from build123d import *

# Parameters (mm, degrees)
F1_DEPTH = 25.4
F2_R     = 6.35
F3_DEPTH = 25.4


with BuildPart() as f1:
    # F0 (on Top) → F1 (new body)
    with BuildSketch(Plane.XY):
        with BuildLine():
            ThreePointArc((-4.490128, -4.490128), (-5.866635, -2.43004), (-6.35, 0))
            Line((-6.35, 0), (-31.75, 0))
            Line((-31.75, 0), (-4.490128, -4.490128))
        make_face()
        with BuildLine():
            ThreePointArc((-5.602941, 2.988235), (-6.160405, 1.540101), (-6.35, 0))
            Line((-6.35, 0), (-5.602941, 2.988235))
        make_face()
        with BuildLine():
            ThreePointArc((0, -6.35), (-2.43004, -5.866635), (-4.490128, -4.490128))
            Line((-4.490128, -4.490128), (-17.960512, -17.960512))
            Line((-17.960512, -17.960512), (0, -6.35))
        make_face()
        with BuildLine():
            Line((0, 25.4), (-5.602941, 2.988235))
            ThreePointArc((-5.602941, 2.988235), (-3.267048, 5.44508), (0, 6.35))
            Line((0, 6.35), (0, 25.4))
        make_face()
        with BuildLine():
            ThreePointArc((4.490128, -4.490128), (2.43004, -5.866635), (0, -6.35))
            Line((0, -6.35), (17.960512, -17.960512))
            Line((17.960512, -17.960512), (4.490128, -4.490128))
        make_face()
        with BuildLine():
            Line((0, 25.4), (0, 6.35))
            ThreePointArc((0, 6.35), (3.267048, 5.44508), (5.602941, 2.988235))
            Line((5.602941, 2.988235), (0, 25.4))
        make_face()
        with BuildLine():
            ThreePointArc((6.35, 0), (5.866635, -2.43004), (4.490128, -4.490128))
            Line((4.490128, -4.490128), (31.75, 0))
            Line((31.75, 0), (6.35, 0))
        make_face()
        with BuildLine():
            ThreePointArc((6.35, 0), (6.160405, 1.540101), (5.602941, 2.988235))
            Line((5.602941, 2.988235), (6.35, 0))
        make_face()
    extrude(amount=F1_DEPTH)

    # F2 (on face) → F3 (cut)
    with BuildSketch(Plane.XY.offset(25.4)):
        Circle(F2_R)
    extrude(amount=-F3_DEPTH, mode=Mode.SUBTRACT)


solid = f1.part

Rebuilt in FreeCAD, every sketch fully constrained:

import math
import FreeCAD as App
import Part
import Sketcher

V = App.Vector
Q = App.Units.Quantity

doc = App.newDocument("Part")
body = doc.addObject("PartDesign::Body", "Body")
body.AllowCompound = True

# Sketch on XY plane
sketch1 = body.newObject("Sketcher::SketchObject", "Sketch")
sketch1.AttachmentSupport = (doc.getObject("XY_Plane"), [""])
sketch1.MapMode = "FlatFace"
sketch1.addGeometry([
    Part.ArcOfCircle(Part.Circle(V(0, 0, 0), V(0, 0, 1), 6.3), math.radians(180), math.radians(225)),  # 0
    Part.LineSegment(V(-6.3, 0, 0), V(-31.8, 0, 0)),  # 1
    Part.LineSegment(V(-31.8, 0, 0), V(-4.5, -4.5, 0)),  # 2
    Part.ArcOfCircle(Part.Circle(V(0, 0, 0), V(0, 0, 1), 6.3), math.radians(152), math.radians(180)),  # 3
    Part.LineSegment(V(-6.3, 0, 0), V(-5.6, 3, 0)),  # 4
    Part.ArcOfCircle(Part.Circle(V(0, 0, 0), V(0, 0, 1), 6.3), math.radians(-135), math.radians(-90)),  # 5
    Part.LineSegment(V(-4.5, -4.5, 0), V(-18, -18, 0)),  # 6
    Part.LineSegment(V(-18, -18, 0), V(0, -6.3, 0)),  # 7
    Part.LineSegment(V(0, 25.4, 0), V(-5.6, 3, 0)),  # 8
    Part.ArcOfCircle(Part.Circle(V(0, 0, 0), V(0, 0, 1), 6.3), math.radians(90), math.radians(152)),  # 9
    Part.ArcOfCircle(Part.Circle(V(0, 0, 0), V(0, 0, 1), 6.3), math.radians(28), math.radians(90)),  # 10
    Part.LineSegment(V(5.6, 3, 0), V(0, 25.4, 0)),  # 11
    Part.ArcOfCircle(Part.Circle(V(0, 0, 0), V(0, 0, 1), 6.3), math.radians(-90), math.radians(-45)),  # 12
    Part.LineSegment(V(0, -6.3, 0), V(18, -18, 0)),  # 13
    Part.LineSegment(V(18, -18, 0), V(4.5, -4.5, 0)),  # 14
    Part.ArcOfCircle(Part.Circle(V(0, 0, 0), V(0, 0, 1), 6.3), math.radians(-45), math.radians(0)),  # 15
    Part.LineSegment(V(4.5, -4.5, 0), V(31.8, 0, 0)),  # 16
    Part.LineSegment(V(31.8, 0, 0), V(6.3, 0, 0)),  # 17
    Part.ArcOfCircle(Part.Circle(V(0, 0, 0), V(0, 0, 1), 6.3), math.radians(0), math.radians(28)),  # 18
    Part.LineSegment(V(5.6, 3, 0), V(6.3, 0, 0)),  # 19
], False)
sketch1.addConstraint([
    Sketcher.Constraint("Coincident", 0, 1, 1, 1),
    Sketcher.Constraint("Coincident", 1, 2, 2, 1),
    Sketcher.Constraint("Coincident", 2, 2, 0, 2),
    Sketcher.Constraint("Coincident", 3, 1, 4, 2),
    Sketcher.Constraint("Coincident", 4, 1, 3, 2),
    Sketcher.Constraint("Coincident", 5, 1, 6, 1),
    Sketcher.Constraint("Coincident", 6, 2, 7, 1),
    Sketcher.Constraint("Coincident", 7, 2, 5, 2),
    Sketcher.Constraint("Coincident", 8, 2, 9, 2),
    Sketcher.Constraint("Tangent", 9, 1, 10, 2),
    Sketcher.Constraint("Coincident", 10, 1, 11, 1),
    Sketcher.Constraint("Coincident", 11, 2, 8, 1),
    Sketcher.Constraint("Coincident", 12, 1, 13, 1),
    Sketcher.Constraint("Coincident", 13, 2, 14, 1),
    Sketcher.Constraint("Coincident", 14, 2, 12, 2),
    Sketcher.Constraint("Coincident", 15, 1, 16, 1),
    Sketcher.Constraint("Coincident", 16, 2, 17, 1),
    Sketcher.Constraint("Coincident", 17, 2, 15, 2),
    Sketcher.Constraint("Coincident", 18, 1, 19, 2),
    Sketcher.Constraint("Coincident", 19, 1, 18, 2),
    Sketcher.Constraint("Horizontal", 1),
    Sketcher.Constraint("Horizontal", 17),
    Sketcher.Constraint("Coincident", 0, 3, -1, 1),
    Sketcher.Constraint("Coincident", 3, 3, -1, 1),
    Sketcher.Constraint("Coincident", 5, 3, -1, 1),
    Sketcher.Constraint("Coincident", 9, 3, -1, 1),
    Sketcher.Constraint("Coincident", 12, 3, -1, 1),
    Sketcher.Constraint("Coincident", 15, 3, -1, 1),
    Sketcher.Constraint("Coincident", 18, 3, -1, 1),
    Sketcher.Constraint("Coincident", 4, 1, 0, 1),
    Sketcher.Constraint("Coincident", 5, 1, 2, 2),
    Sketcher.Constraint("Coincident", 8, 2, 3, 1),
    Sketcher.Constraint("Coincident", 12, 1, 7, 2),
    Sketcher.Constraint("Coincident", 15, 1, 14, 2),
    Sketcher.Constraint("Coincident", 18, 1, 17, 2),
    Sketcher.Constraint("Coincident", 19, 1, 10, 1),
    Sketcher.Constraint("Symmetric", 1, 2, 16, 2, -1, 1),
    Sketcher.Constraint("Symmetric", 6, 2, 13, 2, -2),
    Sketcher.Constraint("PointOnObject", 0, 1, -1),
    Sketcher.Constraint("PointOnObject", 7, 2, -2),
    Sketcher.Constraint("PointOnObject", 9, 1, -2),
    Sketcher.Constraint("PointOnObject", 11, 2, -2),
    Sketcher.Constraint("Parallel", 4, 8),
    Sketcher.Constraint("Perpendicular", 6, 14),
    Sketcher.Constraint("Parallel", 11, 19),
    Sketcher.Constraint("Horizontal", 5, 1, 14, 2),
    Sketcher.Constraint("DistanceX", 1, 2, 1, 1, Q("1 in")),
    Sketcher.Constraint("Radius", 0, Q("0.25 in")),
    Sketcher.Constraint("DistanceY", -1, 1, 11, 2, Q("1 in")),
    Sketcher.Constraint("Distance", 6, Q("0.75 in")),
    Sketcher.Constraint("DistanceX", 2, 2, -1, 1, Q("4.490128 mm")),
])
pad1 = body.newObject("PartDesign::Pad", "Pad")
pad1.Profile = sketch1
pad1.Length = Q("1 in")

# Sketch on XY plane
sketch2 = body.newObject("Sketcher::SketchObject", "Sketch001")
sketch2.AttachmentSupport = (doc.getObject("XY_Plane"), [""])
sketch2.MapMode = "FlatFace"
sketch2.AttachmentOffset = App.Placement(V(0, 0, 1 * 25.4), App.Rotation())
sketch2.addGeometry(Part.Circle(V(0, 0, 0), V(0, 0, 1), 6), False)
sketch2.addConstraint([
    Sketcher.Constraint("Coincident", 0, 3, -1, 1),
    Sketcher.Constraint("Diameter", 0, Q("0.5 in")),
])
pocket1 = body.newObject("PartDesign::Pocket", "Pocket")
pocket1.Profile = sketch2
pocket1.Length = Q("1 in")

doc.recompute()
